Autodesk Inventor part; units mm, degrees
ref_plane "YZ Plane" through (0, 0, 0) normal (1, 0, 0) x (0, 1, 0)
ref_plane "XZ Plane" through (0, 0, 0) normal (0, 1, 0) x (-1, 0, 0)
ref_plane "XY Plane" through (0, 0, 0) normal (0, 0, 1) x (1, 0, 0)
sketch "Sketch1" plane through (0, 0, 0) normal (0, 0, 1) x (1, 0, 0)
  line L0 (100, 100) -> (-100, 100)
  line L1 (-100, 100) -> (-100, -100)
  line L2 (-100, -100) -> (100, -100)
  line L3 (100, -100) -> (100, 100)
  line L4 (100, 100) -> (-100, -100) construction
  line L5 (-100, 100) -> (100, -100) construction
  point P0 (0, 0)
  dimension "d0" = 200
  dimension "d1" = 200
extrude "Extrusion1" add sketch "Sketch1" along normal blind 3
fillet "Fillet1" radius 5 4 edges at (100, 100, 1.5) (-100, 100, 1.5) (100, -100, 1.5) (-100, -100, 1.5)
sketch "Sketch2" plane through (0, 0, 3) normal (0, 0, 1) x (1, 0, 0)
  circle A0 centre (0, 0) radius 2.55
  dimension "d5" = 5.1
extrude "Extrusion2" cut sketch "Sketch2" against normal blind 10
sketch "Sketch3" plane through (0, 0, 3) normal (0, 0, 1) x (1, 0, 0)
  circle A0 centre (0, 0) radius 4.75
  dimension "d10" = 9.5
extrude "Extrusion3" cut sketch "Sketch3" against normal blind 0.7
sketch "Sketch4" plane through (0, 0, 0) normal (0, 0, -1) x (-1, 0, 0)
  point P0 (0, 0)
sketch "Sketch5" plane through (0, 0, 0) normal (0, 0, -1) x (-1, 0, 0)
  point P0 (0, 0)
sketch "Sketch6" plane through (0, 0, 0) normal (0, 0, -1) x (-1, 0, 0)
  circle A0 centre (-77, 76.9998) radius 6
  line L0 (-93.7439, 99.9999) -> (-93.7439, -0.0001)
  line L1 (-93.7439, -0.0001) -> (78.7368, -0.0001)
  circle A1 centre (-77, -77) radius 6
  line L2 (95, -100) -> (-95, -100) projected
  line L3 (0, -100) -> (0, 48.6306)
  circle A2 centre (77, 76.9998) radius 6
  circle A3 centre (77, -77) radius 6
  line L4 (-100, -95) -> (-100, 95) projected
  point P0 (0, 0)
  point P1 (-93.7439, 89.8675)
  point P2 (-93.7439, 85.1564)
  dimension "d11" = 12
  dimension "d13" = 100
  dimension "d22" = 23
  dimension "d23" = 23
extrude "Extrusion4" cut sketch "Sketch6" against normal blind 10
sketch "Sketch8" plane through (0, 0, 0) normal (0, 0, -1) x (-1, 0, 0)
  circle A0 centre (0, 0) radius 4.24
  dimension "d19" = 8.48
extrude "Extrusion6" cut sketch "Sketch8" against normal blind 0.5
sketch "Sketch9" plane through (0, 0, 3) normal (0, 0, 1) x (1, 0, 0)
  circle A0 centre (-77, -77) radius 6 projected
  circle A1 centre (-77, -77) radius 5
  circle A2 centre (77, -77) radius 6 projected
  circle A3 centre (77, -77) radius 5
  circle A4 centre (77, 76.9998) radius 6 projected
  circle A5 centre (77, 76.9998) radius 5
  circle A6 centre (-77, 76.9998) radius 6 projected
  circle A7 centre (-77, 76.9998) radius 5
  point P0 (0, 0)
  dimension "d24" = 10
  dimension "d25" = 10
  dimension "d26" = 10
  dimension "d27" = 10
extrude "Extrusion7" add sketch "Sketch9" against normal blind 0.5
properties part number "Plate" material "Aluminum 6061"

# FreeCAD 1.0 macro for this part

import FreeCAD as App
import Part
import Sketcher

V = App.Vector


def edges_at(feature, points):
    """Names of the edges that pass closest to the given points."""
    edges = feature.Shape.Edges
    near = lambda p: min(range(len(edges)), key=lambda i: edges[i].distToShape(Part.Vertex(*p))[0])
    return sorted({f"Edge{near(p) + 1}" for p in points})

doc = App.newDocument("Part")
params = doc.addObject("Spreadsheet::Sheet", "Params")
for row, (alias, value) in enumerate([
    ("sketch1_width", "200 mm"),
    ("pad1_length", "3 mm"),
    ("fillet_radius", "5 mm"),
    ("sketch2_diameter", "5.1 mm"),
    ("pocket1_length", "10 mm"),
    ("sketch3_diameter", "9.5 mm"),
    ("pocket2_length", "0.7 mm"),
    ("sketch4_diameter", "12 mm"),
    ("pocket3_length", "10 mm"),
    ("sketch5_diameter", "8.48 mm"),
    ("pocket4_length", "0.5 mm"),
    ("sketch6_diameter", "10 mm"),
    ("sketch6_diameter2", "12 mm"),
    ("pad2_length", "0.5 mm"),
], start=1):
    params.set(f"A{row}", alias)
    params.set(f"B{row}", "=" + value)
    params.setAlias(f"B{row}", alias)

body = doc.addObject("PartDesign::Body", "Body")

# Sketch on XY plane
sketch1 = body.newObject("Sketcher::SketchObject", "Sketch")
sketch1.AttachmentSupport = (doc.getObject("XY_Plane"), [""])
sketch1.MapMode = "FlatFace"
sketch1.addGeometry([
    Part.LineSegment(V(100, -100, 0), V(100, 100, 0)),
    Part.LineSegment(V(100, 100, 0), V(-100, 100, 0)),
    Part.LineSegment(V(-100, 100, 0), V(-100, -100, 0)),
    Part.LineSegment(V(-100, -100, 0), V(100, -100, 0)),
], False)
sketch1.addConstraint([
    Sketcher.Constraint("Coincident", 0, 2, 1, 1),
    Sketcher.Constraint("Coincident", 1, 2, 2, 1),
    Sketcher.Constraint("Coincident", 2, 2, 3, 1),
    Sketcher.Constraint("Coincident", 3, 2, 0, 1),
    Sketcher.Constraint("Vertical", 0),
    Sketcher.Constraint("Horizontal", 1),
    Sketcher.Constraint("Vertical", 2),
    Sketcher.Constraint("Horizontal", 3),
    Sketcher.Constraint("Symmetric", 0, 2, 2, 2, -1, 1),
    Sketcher.Constraint("Equal", 3, 0),
    Sketcher.Constraint("DistanceX", 1, 2, 1, 1, 200.0),
])
sketch1.setExpression("Constraints[10]", "Params.sketch1_width")
pad1 = body.newObject("PartDesign::Pad", "Pad")
pad1.Profile = sketch1
pad1.setExpression("Length", "Params.pad1_length")
doc.recompute()

fillet = body.newObject("PartDesign::Fillet", "Fillet")
fillet.Base = (pad1, edges_at(pad1, [
    (100, 100, 1.5),
    (-100, 100, 1.5),
    (100, -100, 1.5),
    (-100, -100, 1.5),
]))
fillet.setExpression("Radius", "Params.fillet_radius")

# Sketch on XY plane
sketch2 = body.newObject("Sketcher::SketchObject", "Sketch001")
sketch2.AttachmentSupport = (doc.getObject("XY_Plane"), [""])
sketch2.MapMode = "FlatFace"
sketch2.AttachmentOffset = App.Placement(V(0, 0, 3), App.Rotation())
sketch2.addGeometry(Part.Circle(V(0, 0, 0), V(0, 0, 1), 2.55), False)
sketch2.addConstraint([
    Sketcher.Constraint("Coincident", 0, 3, -1, 1),
    Sketcher.Constraint("Diameter", 0, 5.1),
])
sketch2.setExpression("Constraints[1]", "Params.sketch2_diameter")
pocket1 = body.newObject("PartDesign::Pocket", "Pocket")
pocket1.Profile = sketch2
pocket1.setExpression("Length", "Params.pocket1_length")

# Sketch on XY plane
sketch3 = body.newObject("Sketcher::SketchObject", "Sketch002")
sketch3.AttachmentSupport = (doc.getObject("XY_Plane"), [""])
sketch3.MapMode = "FlatFace"
sketch3.AttachmentOffset = App.Placement(V(0, 0, 3), App.Rotation())
sketch3.addGeometry(Part.Circle(V(0, 0, 0), V(0, 0, 1), 4.75), False)
sketch3.addConstraint([
    Sketcher.Constraint("Coincident", 0, 3, -1, 1),
    Sketcher.Constraint("Diameter", 0, 9.5),
])
sketch3.setExpression("Constraints[1]", "Params.sketch3_diameter")
pocket2 = body.newObject("PartDesign::Pocket", "Pocket001")
pocket2.Profile = sketch3
pocket2.setExpression("Length", "Params.pocket2_length")

# Sketch on XY plane
sketch4 = body.newObject("Sketcher::SketchObject", "Sketch003")
sketch4.AttachmentSupport = (doc.getObject("XY_Plane"), [""])
sketch4.MapMode = "FlatFace"
sketch4.addGeometry([
    Part.Circle(V(77, 76.9998, 0), V(0, 0, 1), 6),
    Part.Circle(V(77, -77, 0), V(0, 0, 1), 6),
    Part.Circle(V(-77, 76.9998, 0), V(0, 0, 1), 6),
    Part.Circle(V(-77, -77, 0), V(0, 0, 1), 6),
], False)
sketch4.addConstraint([
    Sketcher.Constraint("Equal", 0, 1),
    Sketcher.Constraint("Equal", 1, 2),
    Sketcher.Constraint("Equal", 2, 3),
    Sketcher.Constraint("Symmetric", 1, 3, 2, 3, -1, 1),
    Sketcher.Constraint("Symmetric", 0, 3, 3, 3, -1, 1),
    Sketcher.Constraint("Symmetric", 0, 3, 2, 3, -2),
    Sketcher.Constraint("Diameter", 0, 12.0),
    Sketcher.Constraint("DistanceX", -1, 1, 0, 3, 77.0),
    Sketcher.Constraint("DistanceY", 1, 3, -1, 1, 77.0),
])
sketch4.setExpression("Constraints[6]", "Params.sketch4_diameter")
pocket3 = body.newObject("PartDesign::Pocket", "Pocket002")
pocket3.Profile = sketch4
pocket3.setExpression("Length", "Params.pocket3_length")
pocket3.Reversed = True

# Sketch on XY plane
sketch5 = body.newObject("Sketcher::SketchObject", "Sketch004")
sketch5.AttachmentSupport = (doc.getObject("XY_Plane"), [""])
sketch5.MapMode = "FlatFace"
sketch5.addGeometry(Part.Circle(V(0, 0, 0), V(0, 0, 1), 4.24), False)
sketch5.addConstraint([
    Sketcher.Constraint("Coincident", 0, 3, -1, 1),
    Sketcher.Constraint("Diameter", 0, 8.48),
])
sketch5.setExpression("Constraints[1]", "Params.sketch5_diameter")
pocket4 = body.newObject("PartDesign::Pocket", "Pocket003")
pocket4.Profile = sketch5
pocket4.setExpression("Length", "Params.pocket4_length")
pocket4.Reversed = True

# Sketch on XY plane
sketch6 = body.newObject("Sketcher::SketchObject", "Sketch005")
sketch6.AttachmentSupport = (doc.getObject("XY_Plane"), [""])
sketch6.MapMode = "FlatFace"
sketch6.AttachmentOffset = App.Placement(V(0, 0, 3), App.Rotation())
sketch6.addGeometry([
    Part.Circle(V(-77, -77, 0), V(0, 0, 1), 6),  # 0
    Part.Circle(V(-77, -77, 0), V(0, 0, 1), 5),  # 1
    Part.Circle(V(77, -77, 0), V(0, 0, 1), 6),  # 2
    Part.Circle(V(77, -77, 0), V(0, 0, 1), 5),  # 3
    Part.Circle(V(77, 76.9998, 0), V(0, 0, 1), 6),  # 4
    Part.Circle(V(77, 76.9998, 0), V(0, 0, 1), 5),  # 5
    Part.Circle(V(-77, 76.9998, 0), V(0, 0, 1), 6),  # 6
    Part.Circle(V(-77, 76.9998, 0), V(0, 0, 1), 5),  # 7
], False)
sketch6.addConstraint([
    Sketcher.Constraint("Coincident", 1, 3, 0, 3),
    Sketcher.Constraint("Coincident", 3, 3, 2, 3),
    Sketcher.Constraint("Coincident", 5, 3, 4, 3),
    Sketcher.Constraint("Coincident", 7, 3, 6, 3),
    Sketcher.Constraint("Equal", 0, 2),
    Sketcher.Constraint("Equal", 1, 3),
    Sketcher.Constraint("Equal", 2, 4),
    Sketcher.Constraint("Equal", 3, 5),
    Sketcher.Constraint("Equal", 4, 6),
    Sketcher.Constraint("Equal", 5, 7),
    Sketcher.Constraint("Symmetric", 0, 3, 4, 3, -1, 1),
    Sketcher.Constraint("Symmetric", 2, 3, 6, 3, -1, 1),
    Sketcher.Constraint("Symmetric", 0, 3, 2, 3, -2),
    Sketcher.Constraint("Diameter", 1, 10.0),
    Sketcher.Constraint("Diameter", 0, 12.0),
    Sketcher.Constraint("DistanceX", 0, 3, -1, 1, 77.0),
    Sketcher.Constraint("DistanceY", 0, 3, -1, 1, 77.0),
])
sketch6.setExpression("Constraints[13]", "Params.sketch6_diameter")
sketch6.setExpression("Constraints[14]", "Params.sketch6_diameter2")
pad2 = body.newObject("PartDesign::Pad", "Pad001")
pad2.Profile = sketch6
pad2.setExpression("Length", "Params.pad2_length")
pad2.Reversed = True

doc.recompute()
